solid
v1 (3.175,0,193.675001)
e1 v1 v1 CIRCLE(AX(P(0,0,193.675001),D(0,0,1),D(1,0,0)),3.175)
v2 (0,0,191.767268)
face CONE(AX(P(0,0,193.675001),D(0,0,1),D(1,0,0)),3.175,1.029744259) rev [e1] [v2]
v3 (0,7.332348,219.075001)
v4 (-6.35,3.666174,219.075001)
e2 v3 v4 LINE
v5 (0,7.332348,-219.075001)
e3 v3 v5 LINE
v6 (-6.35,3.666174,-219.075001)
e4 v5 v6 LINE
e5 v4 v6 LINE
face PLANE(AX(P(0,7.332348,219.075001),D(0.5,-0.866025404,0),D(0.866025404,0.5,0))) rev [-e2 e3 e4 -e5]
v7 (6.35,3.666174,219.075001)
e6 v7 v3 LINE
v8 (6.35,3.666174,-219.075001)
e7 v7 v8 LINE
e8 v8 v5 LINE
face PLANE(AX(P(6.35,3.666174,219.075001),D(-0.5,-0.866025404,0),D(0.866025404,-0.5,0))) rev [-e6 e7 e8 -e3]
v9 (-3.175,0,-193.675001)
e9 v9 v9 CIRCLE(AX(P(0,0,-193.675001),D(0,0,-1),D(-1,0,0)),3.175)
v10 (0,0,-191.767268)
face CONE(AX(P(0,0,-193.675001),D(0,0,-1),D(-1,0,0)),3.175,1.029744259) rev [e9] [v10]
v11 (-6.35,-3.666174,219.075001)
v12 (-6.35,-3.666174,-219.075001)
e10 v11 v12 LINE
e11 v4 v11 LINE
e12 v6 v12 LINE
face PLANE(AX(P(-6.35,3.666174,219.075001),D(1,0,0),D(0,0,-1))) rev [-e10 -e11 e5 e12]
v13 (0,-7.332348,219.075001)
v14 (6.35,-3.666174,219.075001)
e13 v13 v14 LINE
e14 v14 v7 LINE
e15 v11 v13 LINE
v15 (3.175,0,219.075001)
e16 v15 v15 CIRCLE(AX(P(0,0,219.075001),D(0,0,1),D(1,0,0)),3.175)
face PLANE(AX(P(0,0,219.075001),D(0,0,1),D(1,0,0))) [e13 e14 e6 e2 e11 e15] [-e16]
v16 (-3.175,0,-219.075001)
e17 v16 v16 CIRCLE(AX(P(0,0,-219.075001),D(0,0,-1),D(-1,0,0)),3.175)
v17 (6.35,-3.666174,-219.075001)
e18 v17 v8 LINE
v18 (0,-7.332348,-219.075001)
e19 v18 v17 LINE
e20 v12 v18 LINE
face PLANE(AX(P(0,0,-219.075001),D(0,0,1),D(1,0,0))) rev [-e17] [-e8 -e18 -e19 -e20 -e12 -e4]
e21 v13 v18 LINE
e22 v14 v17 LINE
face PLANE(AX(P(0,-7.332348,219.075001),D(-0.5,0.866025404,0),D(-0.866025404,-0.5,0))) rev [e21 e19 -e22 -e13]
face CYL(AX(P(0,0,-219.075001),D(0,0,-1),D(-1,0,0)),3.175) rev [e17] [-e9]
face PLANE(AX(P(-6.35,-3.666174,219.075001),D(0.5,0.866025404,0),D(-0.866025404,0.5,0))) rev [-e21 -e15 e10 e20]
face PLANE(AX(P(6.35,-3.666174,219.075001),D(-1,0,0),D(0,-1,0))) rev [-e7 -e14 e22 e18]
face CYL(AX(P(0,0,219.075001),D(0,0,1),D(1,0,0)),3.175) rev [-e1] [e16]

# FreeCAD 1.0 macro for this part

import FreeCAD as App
import Part
import Sketcher

V = App.Vector
Q = App.Units.Quantity

doc = App.newDocument("Part")
body = doc.addObject("PartDesign::Body", "Body")

# Sketch on XY plane
sketch1 = body.newObject("Sketcher::SketchObject", "Sketch")
sketch1.AttachmentSupport = (doc.getObject("XY_Plane"), [""])
sketch1.MapMode = "FlatFace"
sketch1.addGeometry([
    Part.LineSegment(V(-6, -4, 0), V(0, -7, 0)),  # 0
    Part.LineSegment(V(0, -7, 0), V(6, -4, 0)),  # 1
    Part.LineSegment(V(6, -4, 0), V(6, 4, 0)),  # 2
    Part.LineSegment(V(6, 4, 0), V(0, 7, 0)),  # 3
    Part.LineSegment(V(0, 7, 0), V(-6, 4, 0)),  # 4
    Part.LineSegment(V(-6, 4, 0), V(-6, -4, 0)),  # 5
], False)
sketch1.addConstraint([
    Sketcher.Constraint("Coincident", 0, 2, 1, 1),
    Sketcher.Constraint("Coincident", 1, 2, 2, 1),
    Sketcher.Constraint("Coincident", 2, 2, 3, 1),
    Sketcher.Constraint("Coincident", 3, 2, 4, 1),
    Sketcher.Constraint("Coincident", 4, 2, 5, 1),
    Sketcher.Constraint("Coincident", 5, 2, 0, 1),
    Sketcher.Constraint("Vertical", 2),
    Sketcher.Constraint("Vertical", 5),
    Sketcher.Constraint("Symmetric", 0, 2, 3, 2, -1, 1),
    Sketcher.Constraint("Symmetric", 1, 2, 4, 2, -1, 1),
    Sketcher.Constraint("PointOnObject", 0, 2, -2),
    Sketcher.Constraint("Parallel", 0, 3),
    Sketcher.Constraint("Horizontal", 2, 2, 4, 2),
    Sketcher.Constraint("Angle", 0, Q("-30 deg")),
    Sketcher.Constraint("DistanceX", 4, 2, 2, 2, Q("0.5 in")),
    Sketcher.Constraint("DistanceY", 2, 1, 2, 2, 7.332348),
])
pad1 = body.newObject("PartDesign::Pad", "Pad")
pad1.Profile = sketch1
pad1.Type = "TwoLengths"
pad1.Length = Q("8.625 in")
pad1.Length2 = Q("8.625 in")

# Sketch on XY plane
sketch2 = body.newObject("Sketcher::SketchObject", "Sketch001")
sketch2.AttachmentSupport = (doc.getObject("XY_Plane"), [""])
sketch2.MapMode = "FlatFace"
sketch2.AttachmentOffset = App.Placement(V(0, 0, 8.625 * 25.4), App.Rotation())
sketch2.addGeometry(Part.Circle(V(0, 0, 0), V(0, 0, 1), 3.2), False)
sketch2.addConstraint([
    Sketcher.Constraint("Coincident", 0, 3, -1, 1),
    Sketcher.Constraint("Diameter", 0, Q("0.25 in")),
])
doc.recompute()
hole = body.newObject("PartDesign::Hole", "Hole")
hole.Profile = sketch2
hole.ThreadType = "None"
hole.Diameter = Q("0.25 in")
hole.DepthType = "Dimension"
hole.Depth = Q("1 in")
hole.DrillPoint = "Angled"
hole.DrillPointAngle = 118

# Sketch on XY plane
sketch3 = body.newObject("Sketcher::SketchObject", "Sketch002")
sketch3.AttachmentSupport = (doc.getObject("XY_Plane"), [""])
sketch3.MapMode = "FlatFace"
sketch3.AttachmentOffset = App.Placement(V(0, 0, -8.625 * 25.4), App.Rotation())
sketch3.addGeometry(Part.Circle(V(0, 0, 0), V(0, 0, 1), 3.2), False)
sketch3.addConstraint([
    Sketcher.Constraint("Coincident", 0, 3, -1, 1),
    Sketcher.Constraint("Diameter", 0, Q("0.25 in")),
])
doc.recompute()
hole2 = body.newObject("PartDesign::Hole", "Hole001")
hole2.Profile = sketch3
hole2.ThreadType = "None"
hole2.Diameter = Q("0.25 in")
hole2.DepthType = "Dimension"
hole2.Depth = Q("1 in")
hole2.DrillPoint = "Angled"
hole2.DrillPointAngle = 118
hole2.Reversed = True

doc.recompute()
